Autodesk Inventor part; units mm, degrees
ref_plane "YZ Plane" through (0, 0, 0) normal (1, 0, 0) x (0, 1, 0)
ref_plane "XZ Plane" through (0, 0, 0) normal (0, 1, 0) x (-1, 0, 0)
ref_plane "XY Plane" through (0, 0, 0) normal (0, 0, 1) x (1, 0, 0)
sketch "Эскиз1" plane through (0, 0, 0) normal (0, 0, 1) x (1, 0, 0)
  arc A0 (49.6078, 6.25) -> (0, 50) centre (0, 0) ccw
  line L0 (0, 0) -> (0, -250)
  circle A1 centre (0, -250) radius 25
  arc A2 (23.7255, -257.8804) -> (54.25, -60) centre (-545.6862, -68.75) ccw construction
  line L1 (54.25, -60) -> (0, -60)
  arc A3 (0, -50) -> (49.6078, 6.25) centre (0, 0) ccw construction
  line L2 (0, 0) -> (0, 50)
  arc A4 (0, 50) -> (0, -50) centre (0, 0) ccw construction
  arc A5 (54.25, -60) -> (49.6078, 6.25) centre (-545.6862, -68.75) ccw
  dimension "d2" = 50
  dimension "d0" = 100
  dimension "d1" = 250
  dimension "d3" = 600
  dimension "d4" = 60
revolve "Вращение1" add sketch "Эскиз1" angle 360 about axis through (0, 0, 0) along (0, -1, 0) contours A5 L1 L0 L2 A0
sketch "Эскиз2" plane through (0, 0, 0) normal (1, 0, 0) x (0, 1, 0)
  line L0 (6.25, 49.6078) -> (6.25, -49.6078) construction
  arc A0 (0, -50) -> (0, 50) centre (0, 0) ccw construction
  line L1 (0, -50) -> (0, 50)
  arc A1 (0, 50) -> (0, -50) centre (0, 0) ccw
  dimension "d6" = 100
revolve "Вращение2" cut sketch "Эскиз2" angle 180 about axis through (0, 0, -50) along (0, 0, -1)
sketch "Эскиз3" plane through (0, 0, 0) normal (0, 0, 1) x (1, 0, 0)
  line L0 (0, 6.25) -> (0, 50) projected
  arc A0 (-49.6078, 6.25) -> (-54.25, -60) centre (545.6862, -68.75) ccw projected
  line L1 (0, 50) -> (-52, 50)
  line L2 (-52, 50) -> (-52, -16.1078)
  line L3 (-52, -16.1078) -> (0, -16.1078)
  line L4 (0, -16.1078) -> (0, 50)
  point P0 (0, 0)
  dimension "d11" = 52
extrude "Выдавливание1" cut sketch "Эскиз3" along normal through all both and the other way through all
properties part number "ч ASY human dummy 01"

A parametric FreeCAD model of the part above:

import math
import FreeCAD as App
import Part
import Sketcher
Q = App.Units.Quantity


def add_polygon(sketch, points):
    """Adds a closed chain of lines whose ends are joined by coincident constraints."""
    first, n = sketch.GeometryCount, len(points)
    for a, b in zip(points, points[1:] + points[:1]):
        sketch.addGeometry(Part.LineSegment(App.Vector(*a, 0), App.Vector(*b, 0)), False)
    for i in range(n):
        sketch.addConstraint(Sketcher.Constraint("Coincident", first + i, 2, first + (i + 1) % n, 1))

doc = App.newDocument("Part")
params = doc.addObject("Spreadsheet::Sheet", "Params")
for row, (alias, value) in enumerate([
    ("sketch1_radius", "50 mm"),
    ("sketch1_width", "54.25 mm"),
    ("revolution_angle", "360 deg"),
    ("sketch2_radius", "50 mm"),
    ("groove_angle", "180 deg"),
    ("sketch3_width", "52 mm"),
], start=1):
    params.set(f"A{row}", alias)
    params.set(f"B{row}", "=" + value)
    params.setAlias(f"B{row}", alias)

body = doc.addObject("PartDesign::Body", "Body")

sketch1 = body.newObject("Sketcher::SketchObject", "Sketch")
sketch1.AttachmentSupport = (doc.getObject("XY_Plane"), [""])
sketch1.MapMode = "FlatFace"
sketch1.addGeometry(Part.ArcOfCircle(Part.Circle(App.Vector(-546, -69, 0), App.Vector(0, 0, 1), 600), math.radians(0.84), math.radians(7.18)), False)
sketch1.addGeometry(Part.ArcOfCircle(Part.Circle(App.Vector(0, 0, 0), App.Vector(0, 0, 1), 50), math.radians(7), math.radians(90)), False)
sketch1.addGeometry(Part.LineSegment(App.Vector(0, 50, 0), App.Vector(0, -60, 0)), False)
sketch1.addGeometry(Part.LineSegment(App.Vector(0, -60, 0), App.Vector(54, -60, 0)), False)
sketch1.addConstraint(Sketcher.Constraint("Tangent", 0, 2, 1, 1))
sketch1.addConstraint(Sketcher.Constraint("Coincident", 1, 2, 2, 1))
sketch1.addConstraint(Sketcher.Constraint("Coincident", 2, 2, 3, 1))
sketch1.addConstraint(Sketcher.Constraint("Coincident", 3, 2, 0, 1))
sketch1.addConstraint(Sketcher.Constraint("Vertical", 2))
sketch1.addConstraint(Sketcher.Constraint("Horizontal", 3))
sketch1.addConstraint(Sketcher.Constraint("Coincident", 1, 3, -1, 1))
sketch1.addConstraint(Sketcher.Constraint("PointOnObject", 1, 2, -2))
sketch1.addConstraint(Sketcher.Constraint("Radius", 1, Q("50 mm")))
sketch1.addConstraint(Sketcher.Constraint("DistanceY", 2, 2, -1, 1, Q("60 mm")))
sketch1.addConstraint(Sketcher.Constraint("DistanceX", 3, 1, 3, 2, Q("54.25 mm")))
sketch1.addConstraint(Sketcher.Constraint("Radius", 0, Q("599.9837 mm")))
sketch1.setExpression("Constraints[8]", "Params.sketch1_radius")
sketch1.setExpression("Constraints[10]", "Params.sketch1_width")
revolution = body.newObject("PartDesign::Revolution", "Revolution")
revolution.Profile = sketch1
revolution.ReferenceAxis = (sketch1, ["V_Axis"])
revolution.setExpression("Angle", "Params.revolution_angle")

sketch2 = body.newObject("Sketcher::SketchObject", "Sketch001")
sketch2.AttachmentSupport = (doc.getObject("YZ_Plane"), [""])
sketch2.MapMode = "FlatFace"
sketch2.addGeometry(Part.ArcOfCircle(Part.Circle(App.Vector(0, 0, 0), App.Vector(0, 0, 1), 50), math.radians(90), math.radians(270)), False)
sketch2.addGeometry(Part.LineSegment(App.Vector(0, -50, 0), App.Vector(0, 50, 0)), False)
sketch2.addConstraint(Sketcher.Constraint("Coincident", 0, 1, 1, 2))
sketch2.addConstraint(Sketcher.Constraint("Coincident", 1, 1, 0, 2))
sketch2.addConstraint(Sketcher.Constraint("Vertical", 1))
sketch2.addConstraint(Sketcher.Constraint("Coincident", 0, 3, -1, 1))
sketch2.addConstraint(Sketcher.Constraint("PointOnObject", 0, 1, -2))
sketch2.addConstraint(Sketcher.Constraint("Radius", 0, Q("50 mm")))
sketch2.setExpression("Constraints[5]", "Params.sketch2_radius")
groove = body.newObject("PartDesign::Groove", "Groove")
groove.Profile = sketch2
groove.ReferenceAxis = (sketch2, ["V_Axis"])
groove.setExpression("Angle", "Params.groove_angle")
groove.Reversed = True

sketch3 = body.newObject("Sketcher::SketchObject", "Sketch002")
sketch3.AttachmentSupport = (doc.getObject("XY_Plane"), [""])
sketch3.MapMode = "FlatFace"
add_polygon(sketch3, [(0, -16), (0, 50), (-52, 50), (-52, -16)])
sketch3.addConstraint(Sketcher.Constraint("Vertical", 0))
sketch3.addConstraint(Sketcher.Constraint("Horizontal", 1))
sketch3.addConstraint(Sketcher.Constraint("Vertical", 2))
sketch3.addConstraint(Sketcher.Constraint("Horizontal", 3))
sketch3.addConstraint(Sketcher.Constraint("PointOnObject", 0, 2, -2))
sketch3.addConstraint(Sketcher.Constraint("DistanceX", 1, 2, 1, 1, Q("52 mm")))
sketch3.addConstraint(Sketcher.Constraint("DistanceY", -1, 1, 0, 2, Q("50 mm")))
sketch3.addConstraint(Sketcher.Constraint("DistanceY", 0, 1, 0, 2, Q("66.1078 mm")))
sketch3.setExpression("Constraints[9]", "Params.sketch3_width")
pocket1 = body.newObject("PartDesign::Pocket", "Pocket")
pocket1.Profile = sketch3
pocket1.Type = "ThroughAll"
pocket1.Midplane = True

doc.recompute()
